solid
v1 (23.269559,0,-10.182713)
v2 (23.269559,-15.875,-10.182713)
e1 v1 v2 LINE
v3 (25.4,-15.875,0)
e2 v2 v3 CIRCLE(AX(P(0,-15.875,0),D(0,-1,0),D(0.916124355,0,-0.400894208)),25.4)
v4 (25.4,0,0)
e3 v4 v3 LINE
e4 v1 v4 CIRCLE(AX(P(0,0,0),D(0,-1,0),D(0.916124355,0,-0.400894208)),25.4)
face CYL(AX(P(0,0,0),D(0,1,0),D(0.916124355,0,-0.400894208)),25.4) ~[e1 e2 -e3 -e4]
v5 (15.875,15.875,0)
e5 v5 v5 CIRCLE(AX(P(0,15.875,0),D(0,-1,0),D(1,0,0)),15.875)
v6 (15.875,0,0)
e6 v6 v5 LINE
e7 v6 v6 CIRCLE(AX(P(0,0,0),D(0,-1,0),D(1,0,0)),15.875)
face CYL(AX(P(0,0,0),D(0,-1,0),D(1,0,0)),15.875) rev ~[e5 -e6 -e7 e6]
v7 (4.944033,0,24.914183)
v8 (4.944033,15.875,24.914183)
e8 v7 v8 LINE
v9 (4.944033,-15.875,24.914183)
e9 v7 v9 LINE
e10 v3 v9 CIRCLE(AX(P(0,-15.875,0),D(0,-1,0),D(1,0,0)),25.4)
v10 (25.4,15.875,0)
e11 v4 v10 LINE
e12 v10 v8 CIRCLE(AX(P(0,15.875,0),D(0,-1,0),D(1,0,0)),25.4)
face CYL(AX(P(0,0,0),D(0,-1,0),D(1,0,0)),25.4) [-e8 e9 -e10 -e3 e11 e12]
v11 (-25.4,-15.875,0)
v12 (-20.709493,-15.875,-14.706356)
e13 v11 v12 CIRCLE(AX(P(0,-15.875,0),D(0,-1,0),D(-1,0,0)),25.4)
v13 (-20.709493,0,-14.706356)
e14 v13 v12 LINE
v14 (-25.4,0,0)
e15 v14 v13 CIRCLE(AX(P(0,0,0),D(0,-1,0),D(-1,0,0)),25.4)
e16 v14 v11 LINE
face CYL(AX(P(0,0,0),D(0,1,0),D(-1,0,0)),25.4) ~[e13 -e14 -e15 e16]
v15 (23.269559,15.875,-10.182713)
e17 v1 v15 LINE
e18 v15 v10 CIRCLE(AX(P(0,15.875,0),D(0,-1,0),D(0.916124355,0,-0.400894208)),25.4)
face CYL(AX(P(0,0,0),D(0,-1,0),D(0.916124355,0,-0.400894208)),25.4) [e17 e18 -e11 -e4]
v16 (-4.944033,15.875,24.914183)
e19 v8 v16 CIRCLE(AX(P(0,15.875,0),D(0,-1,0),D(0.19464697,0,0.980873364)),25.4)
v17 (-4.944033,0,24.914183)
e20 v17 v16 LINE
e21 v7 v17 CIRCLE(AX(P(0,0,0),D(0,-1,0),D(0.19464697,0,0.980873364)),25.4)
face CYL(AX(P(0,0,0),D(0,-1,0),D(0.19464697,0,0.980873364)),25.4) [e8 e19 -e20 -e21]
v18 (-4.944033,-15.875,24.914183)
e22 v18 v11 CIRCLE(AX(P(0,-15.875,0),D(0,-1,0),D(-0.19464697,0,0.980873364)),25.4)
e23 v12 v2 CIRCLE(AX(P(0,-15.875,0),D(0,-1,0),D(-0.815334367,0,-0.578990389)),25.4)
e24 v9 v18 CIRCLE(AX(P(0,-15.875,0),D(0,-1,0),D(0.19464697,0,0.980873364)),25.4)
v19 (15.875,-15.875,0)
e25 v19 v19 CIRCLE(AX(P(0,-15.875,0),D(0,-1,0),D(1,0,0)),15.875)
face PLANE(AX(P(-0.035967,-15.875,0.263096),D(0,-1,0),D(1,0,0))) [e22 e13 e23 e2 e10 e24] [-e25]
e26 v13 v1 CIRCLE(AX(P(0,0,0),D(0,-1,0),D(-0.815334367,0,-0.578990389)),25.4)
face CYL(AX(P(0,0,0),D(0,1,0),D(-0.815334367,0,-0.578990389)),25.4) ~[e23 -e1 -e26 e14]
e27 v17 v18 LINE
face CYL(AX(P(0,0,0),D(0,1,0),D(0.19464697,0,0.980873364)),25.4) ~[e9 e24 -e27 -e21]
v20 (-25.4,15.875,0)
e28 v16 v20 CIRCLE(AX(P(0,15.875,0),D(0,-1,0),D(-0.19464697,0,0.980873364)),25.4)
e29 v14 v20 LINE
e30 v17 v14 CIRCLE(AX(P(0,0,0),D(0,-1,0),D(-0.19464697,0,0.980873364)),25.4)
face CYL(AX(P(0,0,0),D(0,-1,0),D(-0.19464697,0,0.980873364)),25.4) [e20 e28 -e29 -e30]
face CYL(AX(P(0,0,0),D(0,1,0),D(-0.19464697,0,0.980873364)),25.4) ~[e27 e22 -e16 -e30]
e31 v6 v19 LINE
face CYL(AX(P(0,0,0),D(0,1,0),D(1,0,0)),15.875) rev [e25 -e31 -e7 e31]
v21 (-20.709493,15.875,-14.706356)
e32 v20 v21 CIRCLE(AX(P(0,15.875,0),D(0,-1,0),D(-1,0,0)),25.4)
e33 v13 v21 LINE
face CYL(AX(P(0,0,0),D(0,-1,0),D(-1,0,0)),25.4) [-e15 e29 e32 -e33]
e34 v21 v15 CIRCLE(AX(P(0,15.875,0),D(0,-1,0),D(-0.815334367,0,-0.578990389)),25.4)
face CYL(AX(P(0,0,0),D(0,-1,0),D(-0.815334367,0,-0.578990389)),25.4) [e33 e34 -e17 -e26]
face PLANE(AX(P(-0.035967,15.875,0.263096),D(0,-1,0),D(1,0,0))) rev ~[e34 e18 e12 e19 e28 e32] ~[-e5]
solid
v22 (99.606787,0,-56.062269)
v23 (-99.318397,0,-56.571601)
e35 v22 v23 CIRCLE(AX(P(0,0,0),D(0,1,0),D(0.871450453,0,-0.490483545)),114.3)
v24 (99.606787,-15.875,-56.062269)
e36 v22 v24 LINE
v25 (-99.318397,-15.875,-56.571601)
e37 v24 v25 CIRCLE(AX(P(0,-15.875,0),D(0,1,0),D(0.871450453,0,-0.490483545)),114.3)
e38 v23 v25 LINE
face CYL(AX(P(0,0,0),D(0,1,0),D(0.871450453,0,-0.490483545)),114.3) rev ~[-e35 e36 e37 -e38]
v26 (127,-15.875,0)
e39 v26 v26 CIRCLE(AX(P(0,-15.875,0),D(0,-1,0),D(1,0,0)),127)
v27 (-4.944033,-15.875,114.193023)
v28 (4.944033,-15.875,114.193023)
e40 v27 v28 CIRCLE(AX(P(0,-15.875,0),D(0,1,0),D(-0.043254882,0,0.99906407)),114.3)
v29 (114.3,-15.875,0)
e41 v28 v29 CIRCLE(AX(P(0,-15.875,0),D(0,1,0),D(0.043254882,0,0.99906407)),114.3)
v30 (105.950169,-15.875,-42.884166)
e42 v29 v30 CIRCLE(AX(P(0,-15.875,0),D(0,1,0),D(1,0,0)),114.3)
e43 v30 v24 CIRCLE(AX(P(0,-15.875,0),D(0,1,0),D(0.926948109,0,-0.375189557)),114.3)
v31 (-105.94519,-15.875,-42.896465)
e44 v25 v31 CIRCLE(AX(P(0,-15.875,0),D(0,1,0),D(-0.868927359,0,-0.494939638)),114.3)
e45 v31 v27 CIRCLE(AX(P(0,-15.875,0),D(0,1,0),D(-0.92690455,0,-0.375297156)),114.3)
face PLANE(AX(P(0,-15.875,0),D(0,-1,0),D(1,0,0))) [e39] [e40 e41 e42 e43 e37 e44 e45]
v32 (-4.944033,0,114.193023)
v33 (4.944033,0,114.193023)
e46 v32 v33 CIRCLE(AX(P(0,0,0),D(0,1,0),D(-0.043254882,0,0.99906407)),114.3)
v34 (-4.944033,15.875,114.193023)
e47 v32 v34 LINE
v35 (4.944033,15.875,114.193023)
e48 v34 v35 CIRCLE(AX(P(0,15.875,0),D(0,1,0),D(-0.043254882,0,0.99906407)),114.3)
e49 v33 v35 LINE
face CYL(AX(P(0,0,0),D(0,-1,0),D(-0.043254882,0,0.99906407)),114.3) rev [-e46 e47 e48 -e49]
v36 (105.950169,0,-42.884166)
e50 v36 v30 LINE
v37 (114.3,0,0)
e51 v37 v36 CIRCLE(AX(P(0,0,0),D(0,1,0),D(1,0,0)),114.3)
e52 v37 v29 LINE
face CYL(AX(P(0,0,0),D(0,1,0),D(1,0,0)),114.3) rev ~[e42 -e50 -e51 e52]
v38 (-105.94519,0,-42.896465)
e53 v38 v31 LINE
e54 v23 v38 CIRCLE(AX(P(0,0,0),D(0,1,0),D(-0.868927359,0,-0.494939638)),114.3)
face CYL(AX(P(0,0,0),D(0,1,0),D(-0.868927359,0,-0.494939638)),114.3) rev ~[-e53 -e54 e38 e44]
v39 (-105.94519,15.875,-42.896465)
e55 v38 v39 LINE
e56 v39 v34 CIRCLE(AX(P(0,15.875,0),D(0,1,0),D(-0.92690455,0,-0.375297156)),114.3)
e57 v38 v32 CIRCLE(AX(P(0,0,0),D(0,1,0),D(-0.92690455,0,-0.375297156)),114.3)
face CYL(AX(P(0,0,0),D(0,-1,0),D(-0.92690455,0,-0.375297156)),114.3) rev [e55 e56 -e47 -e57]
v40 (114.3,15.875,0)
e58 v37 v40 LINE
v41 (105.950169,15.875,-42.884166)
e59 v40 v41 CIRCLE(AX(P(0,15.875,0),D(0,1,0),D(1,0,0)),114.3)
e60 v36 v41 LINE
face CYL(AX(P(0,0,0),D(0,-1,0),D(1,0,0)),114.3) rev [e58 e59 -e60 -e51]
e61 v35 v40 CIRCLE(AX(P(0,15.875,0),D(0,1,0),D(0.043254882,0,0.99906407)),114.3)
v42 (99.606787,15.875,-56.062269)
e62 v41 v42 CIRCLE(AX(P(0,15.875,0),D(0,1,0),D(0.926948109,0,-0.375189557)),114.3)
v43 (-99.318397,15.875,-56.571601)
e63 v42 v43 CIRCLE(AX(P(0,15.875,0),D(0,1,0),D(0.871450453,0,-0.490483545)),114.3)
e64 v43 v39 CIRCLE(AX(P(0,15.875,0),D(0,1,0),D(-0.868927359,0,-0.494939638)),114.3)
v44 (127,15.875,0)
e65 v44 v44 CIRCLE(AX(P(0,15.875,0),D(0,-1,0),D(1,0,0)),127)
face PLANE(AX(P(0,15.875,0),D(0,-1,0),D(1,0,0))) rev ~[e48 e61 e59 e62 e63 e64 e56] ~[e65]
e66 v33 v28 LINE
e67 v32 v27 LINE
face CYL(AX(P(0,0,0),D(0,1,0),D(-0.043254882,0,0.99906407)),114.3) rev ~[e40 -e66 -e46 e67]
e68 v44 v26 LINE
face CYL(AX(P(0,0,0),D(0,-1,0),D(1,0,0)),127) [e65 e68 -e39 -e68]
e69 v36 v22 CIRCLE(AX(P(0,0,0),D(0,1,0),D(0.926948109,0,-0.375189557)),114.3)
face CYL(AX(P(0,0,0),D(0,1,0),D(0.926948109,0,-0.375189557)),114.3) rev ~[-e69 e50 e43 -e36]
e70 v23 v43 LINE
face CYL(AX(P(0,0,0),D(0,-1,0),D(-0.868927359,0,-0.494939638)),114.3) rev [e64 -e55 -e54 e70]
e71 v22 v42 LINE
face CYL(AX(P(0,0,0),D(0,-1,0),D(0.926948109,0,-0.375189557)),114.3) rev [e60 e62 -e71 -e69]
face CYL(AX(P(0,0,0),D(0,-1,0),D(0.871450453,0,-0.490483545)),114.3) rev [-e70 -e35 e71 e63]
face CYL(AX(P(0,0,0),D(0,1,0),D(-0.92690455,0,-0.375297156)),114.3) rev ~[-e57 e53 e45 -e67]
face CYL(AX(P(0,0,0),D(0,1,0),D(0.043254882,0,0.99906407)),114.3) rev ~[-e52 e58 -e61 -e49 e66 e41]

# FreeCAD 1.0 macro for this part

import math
import FreeCAD as App
import Part
import Sketcher

V = App.Vector
Q = App.Units.Quantity

doc = App.newDocument("Part")
body = doc.addObject("PartDesign::Body", "Body")

# Sketch on XZ plane
sketch1 = body.newObject("Sketcher::SketchObject", "Sketch")
sketch1.AttachmentSupport = (doc.getObject("XZ_Plane"), [""])
sketch1.MapMode = "FlatFace"
sketch1.addGeometry(Part.Circle(V(0, 0, 0), V(0, 0, 1), 127), False)
sketch1.addGeometry(Part.ArcOfCircle(Part.Circle(V(0, 0, 0), V(0, 0, 1), 114.3), math.radians(87.520904), math.radians(92.479096)), False)
sketch1.addGeometry(Part.ArcOfCircle(Part.Circle(V(0, 0, 0), V(0, 0, 1), 114.3), math.radians(0), math.radians(87.520904)), False)
sketch1.addGeometry(Part.ArcOfCircle(Part.Circle(V(0, 0, 0), V(0, 0, 1), 114.3), math.radians(-22.036029), math.radians(0)), False)
sketch1.addGeometry(Part.ArcOfCircle(Part.Circle(V(0, 0, 0), V(0, 0, 1), 114.3), math.radians(-29.372369), math.radians(-22.036029)), False)
sketch1.addGeometry(Part.ArcOfCircle(Part.Circle(V(0, 0, 0), V(0, 0, 1), 114.3), math.radians(-150.33423), math.radians(-29.372369)), False)
sketch1.addGeometry(Part.ArcOfCircle(Part.Circle(V(0, 0, 0), V(0, 0, 1), 114.3), math.radians(-157.95732), math.radians(-150.33423)), False)
sketch1.addGeometry(Part.ArcOfCircle(Part.Circle(V(0, 0, 0), V(0, 0, 1), 114.3), math.radians(92.479096), math.radians(202.04268)), False)
sketch1.addConstraint(Sketcher.Constraint("Tangent", 1, 1, 2, 2))
sketch1.addConstraint(Sketcher.Constraint("Tangent", 2, 1, 3, 2))
sketch1.addConstraint(Sketcher.Constraint("Tangent", 3, 1, 4, 2))
sketch1.addConstraint(Sketcher.Constraint("Tangent", 4, 1, 5, 2))
sketch1.addConstraint(Sketcher.Constraint("Tangent", 5, 1, 6, 2))
sketch1.addConstraint(Sketcher.Constraint("Tangent", 6, 1, 7, 2))
sketch1.addConstraint(Sketcher.Constraint("Tangent", 7, 1, 1, 2))
sketch1.addConstraint(Sketcher.Constraint("Coincident", 0, 3, -1, 1))
sketch1.addConstraint(Sketcher.Constraint("Coincident", 1, 3, -1, 1))
sketch1.addConstraint(Sketcher.Constraint("Coincident", 3, 3, -1, 1))
sketch1.addConstraint(Sketcher.Constraint("Coincident", 5, 3, -1, 1))
sketch1.addConstraint(Sketcher.Constraint("PointOnObject", 2, 1, -1))
sketch1.addConstraint(Sketcher.Constraint("Horizontal", 1, 1, 7, 1))
sketch1.addConstraint(Sketcher.Constraint("Diameter", 0, Q("10 in")))
sketch1.addConstraint(Sketcher.Constraint("Radius", 1, Q("4.5 in")))
sketch1.addConstraint(Sketcher.Constraint("DistanceY", 5, 1, -1, 1, 56.571601))
sketch1.addConstraint(Sketcher.Constraint("DistanceX", -1, 1, 3, 1, 105.950169))
sketch1.addConstraint(Sketcher.Constraint("DistanceY", 4, 1, -1, 1, 56.062269))
sketch1.addConstraint(Sketcher.Constraint("DistanceX", 6, 1, -1, 1, 105.94519))
sketch1.addConstraint(Sketcher.Constraint("DistanceX", -1, 1, 1, 1, 4.944033))
pad1 = body.newObject("PartDesign::Pad", "Pad")
pad1.Profile = sketch1
pad1.Length = Q("1.25 in")
pad1.Midplane = True
body2 = doc.addObject("PartDesign::Body", "Body001")

# Sketch on XZ plane
sketch2 = body2.newObject("Sketcher::SketchObject", "Sketch001")
sketch2.AttachmentSupport = (doc.getObject("XZ_Plane001"), [""])
sketch2.MapMode = "FlatFace"
sketch2.addGeometry(Part.ArcOfCircle(Part.Circle(V(0, 0, 0), V(0, 0, 1), 25.4), math.radians(0), math.radians(78.775899)), False)
sketch2.addGeometry(Part.ArcOfCircle(Part.Circle(V(0, 0, 0), V(0, 0, 1), 25.4), math.radians(78.775899), math.radians(101.224101)), False)
sketch2.addGeometry(Part.ArcOfCircle(Part.Circle(V(0, 0, 0), V(0, 0, 1), 25.4), math.radians(101.224101), math.radians(180)), False)
sketch2.addGeometry(Part.ArcOfCircle(Part.Circle(V(0, 0, 0), V(0, 0, 1), 25.4), math.radians(180), math.radians(215.379563)), False)
sketch2.addGeometry(Part.ArcOfCircle(Part.Circle(V(0, 0, 0), V(0, 0, 1), 25.4), math.radians(-144.620437), math.radians(-23.634092)), False)
sketch2.addGeometry(Part.ArcOfCircle(Part.Circle(V(0, 0, 0), V(0, 0, 1), 25.4), math.radians(-23.634092), math.radians(0)), False)
sketch2.addGeometry(Part.Circle(V(0, 0, 0), V(0, 0, 1), 15.875), False)
sketch2.addConstraint(Sketcher.Constraint("Tangent", 0, 2, 1, 1))
sketch2.addConstraint(Sketcher.Constraint("Tangent", 1, 2, 2, 1))
sketch2.addConstraint(Sketcher.Constraint("Tangent", 2, 2, 3, 1))
sketch2.addConstraint(Sketcher.Constraint("Tangent", 3, 2, 4, 1))
sketch2.addConstraint(Sketcher.Constraint("Tangent", 4, 2, 5, 1))
sketch2.addConstraint(Sketcher.Constraint("Tangent", 5, 2, 0, 1))
sketch2.addConstraint(Sketcher.Constraint("Coincident", 0, 3, -1, 1))
sketch2.addConstraint(Sketcher.Constraint("Coincident", 2, 3, -1, 1))
sketch2.addConstraint(Sketcher.Constraint("Coincident", 6, 3, -1, 1))
sketch2.addConstraint(Sketcher.Constraint("Equal", 2, 3))
sketch2.addConstraint(Sketcher.Constraint("PointOnObject", 2, 2, -1))
sketch2.addConstraint(Sketcher.Constraint("PointOnObject", 5, 2, -1))
sketch2.addConstraint(Sketcher.Constraint("Horizontal", 0, 2, 1, 2))
sketch2.addConstraint(Sketcher.Constraint("Radius", 0, Q("1 in")))
sketch2.addConstraint(Sketcher.Constraint("Diameter", 6, Q("1.25 in")))
sketch2.addConstraint(Sketcher.Constraint("DistanceX", -1, 1, 4, 2, 23.269559))
sketch2.addConstraint(Sketcher.Constraint("DistanceX", -1, 1, 0, 2, 4.944033))
sketch2.addConstraint(Sketcher.Constraint("DistanceX", 3, 2, -1, 1, 20.709493))
pad2 = body2.newObject("PartDesign::Pad", "Pad001")
pad2.Profile = sketch2
pad2.Length = Q("1.25 in")
pad2.Midplane = True

doc.recompute()
